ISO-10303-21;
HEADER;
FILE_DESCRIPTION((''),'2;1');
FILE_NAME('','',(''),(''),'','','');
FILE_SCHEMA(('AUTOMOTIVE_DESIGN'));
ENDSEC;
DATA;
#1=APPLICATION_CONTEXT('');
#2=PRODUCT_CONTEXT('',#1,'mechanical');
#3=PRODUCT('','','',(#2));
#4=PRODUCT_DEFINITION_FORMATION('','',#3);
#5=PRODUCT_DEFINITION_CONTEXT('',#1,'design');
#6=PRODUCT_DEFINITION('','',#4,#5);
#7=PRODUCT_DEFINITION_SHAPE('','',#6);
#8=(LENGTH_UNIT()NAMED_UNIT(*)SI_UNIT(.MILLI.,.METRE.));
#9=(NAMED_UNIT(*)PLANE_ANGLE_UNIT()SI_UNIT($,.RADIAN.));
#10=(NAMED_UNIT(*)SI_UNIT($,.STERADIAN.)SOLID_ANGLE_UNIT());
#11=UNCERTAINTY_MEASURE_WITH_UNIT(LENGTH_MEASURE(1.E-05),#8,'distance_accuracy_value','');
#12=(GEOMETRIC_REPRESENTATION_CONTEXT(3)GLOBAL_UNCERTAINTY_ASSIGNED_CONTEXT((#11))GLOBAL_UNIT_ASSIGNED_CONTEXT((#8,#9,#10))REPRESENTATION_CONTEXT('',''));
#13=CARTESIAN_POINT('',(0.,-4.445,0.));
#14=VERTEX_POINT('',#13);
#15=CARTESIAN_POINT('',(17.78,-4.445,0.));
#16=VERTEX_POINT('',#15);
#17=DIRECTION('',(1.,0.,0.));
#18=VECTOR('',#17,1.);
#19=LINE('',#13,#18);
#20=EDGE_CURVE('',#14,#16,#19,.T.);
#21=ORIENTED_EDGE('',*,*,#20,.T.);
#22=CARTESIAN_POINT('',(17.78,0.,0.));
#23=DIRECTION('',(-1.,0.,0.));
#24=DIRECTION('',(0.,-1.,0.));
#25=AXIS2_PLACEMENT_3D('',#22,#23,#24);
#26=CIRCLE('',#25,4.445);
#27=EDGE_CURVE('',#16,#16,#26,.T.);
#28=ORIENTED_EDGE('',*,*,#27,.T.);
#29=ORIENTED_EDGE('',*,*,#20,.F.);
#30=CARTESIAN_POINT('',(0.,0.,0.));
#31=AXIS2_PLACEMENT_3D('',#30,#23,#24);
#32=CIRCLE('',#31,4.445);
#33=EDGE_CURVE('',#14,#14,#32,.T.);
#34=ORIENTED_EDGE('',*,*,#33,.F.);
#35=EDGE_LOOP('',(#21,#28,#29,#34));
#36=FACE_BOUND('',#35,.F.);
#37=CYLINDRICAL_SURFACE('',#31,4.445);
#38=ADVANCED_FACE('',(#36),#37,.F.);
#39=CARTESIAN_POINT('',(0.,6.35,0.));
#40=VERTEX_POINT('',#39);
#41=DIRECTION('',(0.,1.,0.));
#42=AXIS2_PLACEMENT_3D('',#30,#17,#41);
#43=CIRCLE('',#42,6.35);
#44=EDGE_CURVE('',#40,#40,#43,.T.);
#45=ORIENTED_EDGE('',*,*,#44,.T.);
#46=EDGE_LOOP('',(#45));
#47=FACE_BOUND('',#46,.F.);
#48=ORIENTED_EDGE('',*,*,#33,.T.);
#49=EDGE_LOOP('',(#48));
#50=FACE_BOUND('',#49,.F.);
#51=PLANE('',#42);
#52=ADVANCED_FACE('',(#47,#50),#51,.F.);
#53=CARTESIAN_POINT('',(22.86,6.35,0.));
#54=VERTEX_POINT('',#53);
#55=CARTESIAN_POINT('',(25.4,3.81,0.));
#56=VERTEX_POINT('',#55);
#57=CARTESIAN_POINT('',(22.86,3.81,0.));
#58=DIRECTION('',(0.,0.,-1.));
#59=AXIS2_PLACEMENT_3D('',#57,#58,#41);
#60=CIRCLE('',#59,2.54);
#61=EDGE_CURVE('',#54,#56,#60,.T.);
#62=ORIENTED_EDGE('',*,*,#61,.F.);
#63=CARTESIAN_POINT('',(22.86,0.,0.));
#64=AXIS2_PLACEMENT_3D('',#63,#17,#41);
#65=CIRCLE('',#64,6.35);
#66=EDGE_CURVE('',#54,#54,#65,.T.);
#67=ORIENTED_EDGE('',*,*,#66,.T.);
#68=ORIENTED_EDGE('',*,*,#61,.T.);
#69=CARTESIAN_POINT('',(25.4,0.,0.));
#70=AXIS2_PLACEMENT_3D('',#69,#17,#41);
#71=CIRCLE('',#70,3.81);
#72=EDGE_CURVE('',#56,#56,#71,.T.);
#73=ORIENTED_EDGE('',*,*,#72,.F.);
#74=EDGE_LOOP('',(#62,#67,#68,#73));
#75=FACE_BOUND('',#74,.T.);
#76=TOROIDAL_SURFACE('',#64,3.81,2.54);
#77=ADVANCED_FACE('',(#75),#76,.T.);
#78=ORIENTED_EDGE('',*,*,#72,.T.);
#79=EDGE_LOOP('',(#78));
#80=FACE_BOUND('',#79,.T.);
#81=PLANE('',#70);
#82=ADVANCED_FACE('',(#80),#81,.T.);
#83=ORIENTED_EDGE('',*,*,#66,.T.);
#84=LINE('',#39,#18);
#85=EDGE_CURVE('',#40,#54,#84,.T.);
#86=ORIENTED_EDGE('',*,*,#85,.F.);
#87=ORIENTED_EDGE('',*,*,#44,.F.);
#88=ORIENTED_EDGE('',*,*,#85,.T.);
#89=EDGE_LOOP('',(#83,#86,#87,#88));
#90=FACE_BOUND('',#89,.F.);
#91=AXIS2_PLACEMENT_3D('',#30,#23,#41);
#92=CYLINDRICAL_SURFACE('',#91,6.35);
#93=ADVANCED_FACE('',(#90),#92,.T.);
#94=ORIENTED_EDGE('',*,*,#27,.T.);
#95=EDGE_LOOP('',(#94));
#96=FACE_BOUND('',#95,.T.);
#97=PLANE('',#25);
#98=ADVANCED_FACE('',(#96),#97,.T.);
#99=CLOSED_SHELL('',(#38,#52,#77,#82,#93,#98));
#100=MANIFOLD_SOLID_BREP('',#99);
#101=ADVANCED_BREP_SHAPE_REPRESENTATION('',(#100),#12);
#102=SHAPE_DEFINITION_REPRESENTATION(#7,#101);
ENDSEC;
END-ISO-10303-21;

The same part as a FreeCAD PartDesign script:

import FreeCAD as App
import Part
import Sketcher
Q = App.Units.Quantity


def edges_at(feature, points):
    """Names of the edges that pass closest to the given points."""
    edges = feature.Shape.Edges
    near = lambda p: min(range(len(edges)), key=lambda i: edges[i].distToShape(Part.Vertex(*p))[0])
    return sorted({f"Edge{near(p) + 1}" for p in points})

doc = App.newDocument("Part")
body = doc.addObject("PartDesign::Body", "Body")

sketch1 = body.newObject("Sketcher::SketchObject", "Sketch")
sketch1.AttachmentSupport = (doc.getObject("YZ_Plane"), [""])
sketch1.MapMode = "FlatFace"
sketch1.addGeometry(Part.Circle(App.Vector(0, 0, 0), App.Vector(0, 0, 1), 6), False)
sketch1.addConstraint([
    Sketcher.Constraint("Coincident", 0, 3, -1, 1),
    Sketcher.Constraint("Diameter", 0, Q("0.5 in")),
])
pad1 = body.newObject("PartDesign::Pad", "Pad")
pad1.Profile = sketch1
pad1.Length = Q("1 in")

sketch2 = body.newObject("Sketcher::SketchObject", "Sketch001")
sketch2.AttachmentSupport = (doc.getObject("YZ_Plane"), [""])
sketch2.MapMode = "FlatFace"
sketch2.addGeometry(Part.Circle(App.Vector(0, 0, 0), App.Vector(0, 0, 1), 4.4), False)
sketch2.addConstraint([
    Sketcher.Constraint("Coincident", 0, 3, -1, 1),
    Sketcher.Constraint("Diameter", 0, Q("0.35 in")),
])
pocket1 = body.newObject("PartDesign::Pocket", "Pocket")
pocket1.Profile = sketch2
pocket1.Length = Q("0.7 in")
pocket1.Reversed = True
doc.recompute()

fillet = body.newObject("PartDesign::Fillet", "Fillet")
fillet.Base = (pocket1, edges_at(pocket1, [(25.4, -6.35, 0)]))
fillet.Radius = Q("0.1 in")

doc.recompute()
